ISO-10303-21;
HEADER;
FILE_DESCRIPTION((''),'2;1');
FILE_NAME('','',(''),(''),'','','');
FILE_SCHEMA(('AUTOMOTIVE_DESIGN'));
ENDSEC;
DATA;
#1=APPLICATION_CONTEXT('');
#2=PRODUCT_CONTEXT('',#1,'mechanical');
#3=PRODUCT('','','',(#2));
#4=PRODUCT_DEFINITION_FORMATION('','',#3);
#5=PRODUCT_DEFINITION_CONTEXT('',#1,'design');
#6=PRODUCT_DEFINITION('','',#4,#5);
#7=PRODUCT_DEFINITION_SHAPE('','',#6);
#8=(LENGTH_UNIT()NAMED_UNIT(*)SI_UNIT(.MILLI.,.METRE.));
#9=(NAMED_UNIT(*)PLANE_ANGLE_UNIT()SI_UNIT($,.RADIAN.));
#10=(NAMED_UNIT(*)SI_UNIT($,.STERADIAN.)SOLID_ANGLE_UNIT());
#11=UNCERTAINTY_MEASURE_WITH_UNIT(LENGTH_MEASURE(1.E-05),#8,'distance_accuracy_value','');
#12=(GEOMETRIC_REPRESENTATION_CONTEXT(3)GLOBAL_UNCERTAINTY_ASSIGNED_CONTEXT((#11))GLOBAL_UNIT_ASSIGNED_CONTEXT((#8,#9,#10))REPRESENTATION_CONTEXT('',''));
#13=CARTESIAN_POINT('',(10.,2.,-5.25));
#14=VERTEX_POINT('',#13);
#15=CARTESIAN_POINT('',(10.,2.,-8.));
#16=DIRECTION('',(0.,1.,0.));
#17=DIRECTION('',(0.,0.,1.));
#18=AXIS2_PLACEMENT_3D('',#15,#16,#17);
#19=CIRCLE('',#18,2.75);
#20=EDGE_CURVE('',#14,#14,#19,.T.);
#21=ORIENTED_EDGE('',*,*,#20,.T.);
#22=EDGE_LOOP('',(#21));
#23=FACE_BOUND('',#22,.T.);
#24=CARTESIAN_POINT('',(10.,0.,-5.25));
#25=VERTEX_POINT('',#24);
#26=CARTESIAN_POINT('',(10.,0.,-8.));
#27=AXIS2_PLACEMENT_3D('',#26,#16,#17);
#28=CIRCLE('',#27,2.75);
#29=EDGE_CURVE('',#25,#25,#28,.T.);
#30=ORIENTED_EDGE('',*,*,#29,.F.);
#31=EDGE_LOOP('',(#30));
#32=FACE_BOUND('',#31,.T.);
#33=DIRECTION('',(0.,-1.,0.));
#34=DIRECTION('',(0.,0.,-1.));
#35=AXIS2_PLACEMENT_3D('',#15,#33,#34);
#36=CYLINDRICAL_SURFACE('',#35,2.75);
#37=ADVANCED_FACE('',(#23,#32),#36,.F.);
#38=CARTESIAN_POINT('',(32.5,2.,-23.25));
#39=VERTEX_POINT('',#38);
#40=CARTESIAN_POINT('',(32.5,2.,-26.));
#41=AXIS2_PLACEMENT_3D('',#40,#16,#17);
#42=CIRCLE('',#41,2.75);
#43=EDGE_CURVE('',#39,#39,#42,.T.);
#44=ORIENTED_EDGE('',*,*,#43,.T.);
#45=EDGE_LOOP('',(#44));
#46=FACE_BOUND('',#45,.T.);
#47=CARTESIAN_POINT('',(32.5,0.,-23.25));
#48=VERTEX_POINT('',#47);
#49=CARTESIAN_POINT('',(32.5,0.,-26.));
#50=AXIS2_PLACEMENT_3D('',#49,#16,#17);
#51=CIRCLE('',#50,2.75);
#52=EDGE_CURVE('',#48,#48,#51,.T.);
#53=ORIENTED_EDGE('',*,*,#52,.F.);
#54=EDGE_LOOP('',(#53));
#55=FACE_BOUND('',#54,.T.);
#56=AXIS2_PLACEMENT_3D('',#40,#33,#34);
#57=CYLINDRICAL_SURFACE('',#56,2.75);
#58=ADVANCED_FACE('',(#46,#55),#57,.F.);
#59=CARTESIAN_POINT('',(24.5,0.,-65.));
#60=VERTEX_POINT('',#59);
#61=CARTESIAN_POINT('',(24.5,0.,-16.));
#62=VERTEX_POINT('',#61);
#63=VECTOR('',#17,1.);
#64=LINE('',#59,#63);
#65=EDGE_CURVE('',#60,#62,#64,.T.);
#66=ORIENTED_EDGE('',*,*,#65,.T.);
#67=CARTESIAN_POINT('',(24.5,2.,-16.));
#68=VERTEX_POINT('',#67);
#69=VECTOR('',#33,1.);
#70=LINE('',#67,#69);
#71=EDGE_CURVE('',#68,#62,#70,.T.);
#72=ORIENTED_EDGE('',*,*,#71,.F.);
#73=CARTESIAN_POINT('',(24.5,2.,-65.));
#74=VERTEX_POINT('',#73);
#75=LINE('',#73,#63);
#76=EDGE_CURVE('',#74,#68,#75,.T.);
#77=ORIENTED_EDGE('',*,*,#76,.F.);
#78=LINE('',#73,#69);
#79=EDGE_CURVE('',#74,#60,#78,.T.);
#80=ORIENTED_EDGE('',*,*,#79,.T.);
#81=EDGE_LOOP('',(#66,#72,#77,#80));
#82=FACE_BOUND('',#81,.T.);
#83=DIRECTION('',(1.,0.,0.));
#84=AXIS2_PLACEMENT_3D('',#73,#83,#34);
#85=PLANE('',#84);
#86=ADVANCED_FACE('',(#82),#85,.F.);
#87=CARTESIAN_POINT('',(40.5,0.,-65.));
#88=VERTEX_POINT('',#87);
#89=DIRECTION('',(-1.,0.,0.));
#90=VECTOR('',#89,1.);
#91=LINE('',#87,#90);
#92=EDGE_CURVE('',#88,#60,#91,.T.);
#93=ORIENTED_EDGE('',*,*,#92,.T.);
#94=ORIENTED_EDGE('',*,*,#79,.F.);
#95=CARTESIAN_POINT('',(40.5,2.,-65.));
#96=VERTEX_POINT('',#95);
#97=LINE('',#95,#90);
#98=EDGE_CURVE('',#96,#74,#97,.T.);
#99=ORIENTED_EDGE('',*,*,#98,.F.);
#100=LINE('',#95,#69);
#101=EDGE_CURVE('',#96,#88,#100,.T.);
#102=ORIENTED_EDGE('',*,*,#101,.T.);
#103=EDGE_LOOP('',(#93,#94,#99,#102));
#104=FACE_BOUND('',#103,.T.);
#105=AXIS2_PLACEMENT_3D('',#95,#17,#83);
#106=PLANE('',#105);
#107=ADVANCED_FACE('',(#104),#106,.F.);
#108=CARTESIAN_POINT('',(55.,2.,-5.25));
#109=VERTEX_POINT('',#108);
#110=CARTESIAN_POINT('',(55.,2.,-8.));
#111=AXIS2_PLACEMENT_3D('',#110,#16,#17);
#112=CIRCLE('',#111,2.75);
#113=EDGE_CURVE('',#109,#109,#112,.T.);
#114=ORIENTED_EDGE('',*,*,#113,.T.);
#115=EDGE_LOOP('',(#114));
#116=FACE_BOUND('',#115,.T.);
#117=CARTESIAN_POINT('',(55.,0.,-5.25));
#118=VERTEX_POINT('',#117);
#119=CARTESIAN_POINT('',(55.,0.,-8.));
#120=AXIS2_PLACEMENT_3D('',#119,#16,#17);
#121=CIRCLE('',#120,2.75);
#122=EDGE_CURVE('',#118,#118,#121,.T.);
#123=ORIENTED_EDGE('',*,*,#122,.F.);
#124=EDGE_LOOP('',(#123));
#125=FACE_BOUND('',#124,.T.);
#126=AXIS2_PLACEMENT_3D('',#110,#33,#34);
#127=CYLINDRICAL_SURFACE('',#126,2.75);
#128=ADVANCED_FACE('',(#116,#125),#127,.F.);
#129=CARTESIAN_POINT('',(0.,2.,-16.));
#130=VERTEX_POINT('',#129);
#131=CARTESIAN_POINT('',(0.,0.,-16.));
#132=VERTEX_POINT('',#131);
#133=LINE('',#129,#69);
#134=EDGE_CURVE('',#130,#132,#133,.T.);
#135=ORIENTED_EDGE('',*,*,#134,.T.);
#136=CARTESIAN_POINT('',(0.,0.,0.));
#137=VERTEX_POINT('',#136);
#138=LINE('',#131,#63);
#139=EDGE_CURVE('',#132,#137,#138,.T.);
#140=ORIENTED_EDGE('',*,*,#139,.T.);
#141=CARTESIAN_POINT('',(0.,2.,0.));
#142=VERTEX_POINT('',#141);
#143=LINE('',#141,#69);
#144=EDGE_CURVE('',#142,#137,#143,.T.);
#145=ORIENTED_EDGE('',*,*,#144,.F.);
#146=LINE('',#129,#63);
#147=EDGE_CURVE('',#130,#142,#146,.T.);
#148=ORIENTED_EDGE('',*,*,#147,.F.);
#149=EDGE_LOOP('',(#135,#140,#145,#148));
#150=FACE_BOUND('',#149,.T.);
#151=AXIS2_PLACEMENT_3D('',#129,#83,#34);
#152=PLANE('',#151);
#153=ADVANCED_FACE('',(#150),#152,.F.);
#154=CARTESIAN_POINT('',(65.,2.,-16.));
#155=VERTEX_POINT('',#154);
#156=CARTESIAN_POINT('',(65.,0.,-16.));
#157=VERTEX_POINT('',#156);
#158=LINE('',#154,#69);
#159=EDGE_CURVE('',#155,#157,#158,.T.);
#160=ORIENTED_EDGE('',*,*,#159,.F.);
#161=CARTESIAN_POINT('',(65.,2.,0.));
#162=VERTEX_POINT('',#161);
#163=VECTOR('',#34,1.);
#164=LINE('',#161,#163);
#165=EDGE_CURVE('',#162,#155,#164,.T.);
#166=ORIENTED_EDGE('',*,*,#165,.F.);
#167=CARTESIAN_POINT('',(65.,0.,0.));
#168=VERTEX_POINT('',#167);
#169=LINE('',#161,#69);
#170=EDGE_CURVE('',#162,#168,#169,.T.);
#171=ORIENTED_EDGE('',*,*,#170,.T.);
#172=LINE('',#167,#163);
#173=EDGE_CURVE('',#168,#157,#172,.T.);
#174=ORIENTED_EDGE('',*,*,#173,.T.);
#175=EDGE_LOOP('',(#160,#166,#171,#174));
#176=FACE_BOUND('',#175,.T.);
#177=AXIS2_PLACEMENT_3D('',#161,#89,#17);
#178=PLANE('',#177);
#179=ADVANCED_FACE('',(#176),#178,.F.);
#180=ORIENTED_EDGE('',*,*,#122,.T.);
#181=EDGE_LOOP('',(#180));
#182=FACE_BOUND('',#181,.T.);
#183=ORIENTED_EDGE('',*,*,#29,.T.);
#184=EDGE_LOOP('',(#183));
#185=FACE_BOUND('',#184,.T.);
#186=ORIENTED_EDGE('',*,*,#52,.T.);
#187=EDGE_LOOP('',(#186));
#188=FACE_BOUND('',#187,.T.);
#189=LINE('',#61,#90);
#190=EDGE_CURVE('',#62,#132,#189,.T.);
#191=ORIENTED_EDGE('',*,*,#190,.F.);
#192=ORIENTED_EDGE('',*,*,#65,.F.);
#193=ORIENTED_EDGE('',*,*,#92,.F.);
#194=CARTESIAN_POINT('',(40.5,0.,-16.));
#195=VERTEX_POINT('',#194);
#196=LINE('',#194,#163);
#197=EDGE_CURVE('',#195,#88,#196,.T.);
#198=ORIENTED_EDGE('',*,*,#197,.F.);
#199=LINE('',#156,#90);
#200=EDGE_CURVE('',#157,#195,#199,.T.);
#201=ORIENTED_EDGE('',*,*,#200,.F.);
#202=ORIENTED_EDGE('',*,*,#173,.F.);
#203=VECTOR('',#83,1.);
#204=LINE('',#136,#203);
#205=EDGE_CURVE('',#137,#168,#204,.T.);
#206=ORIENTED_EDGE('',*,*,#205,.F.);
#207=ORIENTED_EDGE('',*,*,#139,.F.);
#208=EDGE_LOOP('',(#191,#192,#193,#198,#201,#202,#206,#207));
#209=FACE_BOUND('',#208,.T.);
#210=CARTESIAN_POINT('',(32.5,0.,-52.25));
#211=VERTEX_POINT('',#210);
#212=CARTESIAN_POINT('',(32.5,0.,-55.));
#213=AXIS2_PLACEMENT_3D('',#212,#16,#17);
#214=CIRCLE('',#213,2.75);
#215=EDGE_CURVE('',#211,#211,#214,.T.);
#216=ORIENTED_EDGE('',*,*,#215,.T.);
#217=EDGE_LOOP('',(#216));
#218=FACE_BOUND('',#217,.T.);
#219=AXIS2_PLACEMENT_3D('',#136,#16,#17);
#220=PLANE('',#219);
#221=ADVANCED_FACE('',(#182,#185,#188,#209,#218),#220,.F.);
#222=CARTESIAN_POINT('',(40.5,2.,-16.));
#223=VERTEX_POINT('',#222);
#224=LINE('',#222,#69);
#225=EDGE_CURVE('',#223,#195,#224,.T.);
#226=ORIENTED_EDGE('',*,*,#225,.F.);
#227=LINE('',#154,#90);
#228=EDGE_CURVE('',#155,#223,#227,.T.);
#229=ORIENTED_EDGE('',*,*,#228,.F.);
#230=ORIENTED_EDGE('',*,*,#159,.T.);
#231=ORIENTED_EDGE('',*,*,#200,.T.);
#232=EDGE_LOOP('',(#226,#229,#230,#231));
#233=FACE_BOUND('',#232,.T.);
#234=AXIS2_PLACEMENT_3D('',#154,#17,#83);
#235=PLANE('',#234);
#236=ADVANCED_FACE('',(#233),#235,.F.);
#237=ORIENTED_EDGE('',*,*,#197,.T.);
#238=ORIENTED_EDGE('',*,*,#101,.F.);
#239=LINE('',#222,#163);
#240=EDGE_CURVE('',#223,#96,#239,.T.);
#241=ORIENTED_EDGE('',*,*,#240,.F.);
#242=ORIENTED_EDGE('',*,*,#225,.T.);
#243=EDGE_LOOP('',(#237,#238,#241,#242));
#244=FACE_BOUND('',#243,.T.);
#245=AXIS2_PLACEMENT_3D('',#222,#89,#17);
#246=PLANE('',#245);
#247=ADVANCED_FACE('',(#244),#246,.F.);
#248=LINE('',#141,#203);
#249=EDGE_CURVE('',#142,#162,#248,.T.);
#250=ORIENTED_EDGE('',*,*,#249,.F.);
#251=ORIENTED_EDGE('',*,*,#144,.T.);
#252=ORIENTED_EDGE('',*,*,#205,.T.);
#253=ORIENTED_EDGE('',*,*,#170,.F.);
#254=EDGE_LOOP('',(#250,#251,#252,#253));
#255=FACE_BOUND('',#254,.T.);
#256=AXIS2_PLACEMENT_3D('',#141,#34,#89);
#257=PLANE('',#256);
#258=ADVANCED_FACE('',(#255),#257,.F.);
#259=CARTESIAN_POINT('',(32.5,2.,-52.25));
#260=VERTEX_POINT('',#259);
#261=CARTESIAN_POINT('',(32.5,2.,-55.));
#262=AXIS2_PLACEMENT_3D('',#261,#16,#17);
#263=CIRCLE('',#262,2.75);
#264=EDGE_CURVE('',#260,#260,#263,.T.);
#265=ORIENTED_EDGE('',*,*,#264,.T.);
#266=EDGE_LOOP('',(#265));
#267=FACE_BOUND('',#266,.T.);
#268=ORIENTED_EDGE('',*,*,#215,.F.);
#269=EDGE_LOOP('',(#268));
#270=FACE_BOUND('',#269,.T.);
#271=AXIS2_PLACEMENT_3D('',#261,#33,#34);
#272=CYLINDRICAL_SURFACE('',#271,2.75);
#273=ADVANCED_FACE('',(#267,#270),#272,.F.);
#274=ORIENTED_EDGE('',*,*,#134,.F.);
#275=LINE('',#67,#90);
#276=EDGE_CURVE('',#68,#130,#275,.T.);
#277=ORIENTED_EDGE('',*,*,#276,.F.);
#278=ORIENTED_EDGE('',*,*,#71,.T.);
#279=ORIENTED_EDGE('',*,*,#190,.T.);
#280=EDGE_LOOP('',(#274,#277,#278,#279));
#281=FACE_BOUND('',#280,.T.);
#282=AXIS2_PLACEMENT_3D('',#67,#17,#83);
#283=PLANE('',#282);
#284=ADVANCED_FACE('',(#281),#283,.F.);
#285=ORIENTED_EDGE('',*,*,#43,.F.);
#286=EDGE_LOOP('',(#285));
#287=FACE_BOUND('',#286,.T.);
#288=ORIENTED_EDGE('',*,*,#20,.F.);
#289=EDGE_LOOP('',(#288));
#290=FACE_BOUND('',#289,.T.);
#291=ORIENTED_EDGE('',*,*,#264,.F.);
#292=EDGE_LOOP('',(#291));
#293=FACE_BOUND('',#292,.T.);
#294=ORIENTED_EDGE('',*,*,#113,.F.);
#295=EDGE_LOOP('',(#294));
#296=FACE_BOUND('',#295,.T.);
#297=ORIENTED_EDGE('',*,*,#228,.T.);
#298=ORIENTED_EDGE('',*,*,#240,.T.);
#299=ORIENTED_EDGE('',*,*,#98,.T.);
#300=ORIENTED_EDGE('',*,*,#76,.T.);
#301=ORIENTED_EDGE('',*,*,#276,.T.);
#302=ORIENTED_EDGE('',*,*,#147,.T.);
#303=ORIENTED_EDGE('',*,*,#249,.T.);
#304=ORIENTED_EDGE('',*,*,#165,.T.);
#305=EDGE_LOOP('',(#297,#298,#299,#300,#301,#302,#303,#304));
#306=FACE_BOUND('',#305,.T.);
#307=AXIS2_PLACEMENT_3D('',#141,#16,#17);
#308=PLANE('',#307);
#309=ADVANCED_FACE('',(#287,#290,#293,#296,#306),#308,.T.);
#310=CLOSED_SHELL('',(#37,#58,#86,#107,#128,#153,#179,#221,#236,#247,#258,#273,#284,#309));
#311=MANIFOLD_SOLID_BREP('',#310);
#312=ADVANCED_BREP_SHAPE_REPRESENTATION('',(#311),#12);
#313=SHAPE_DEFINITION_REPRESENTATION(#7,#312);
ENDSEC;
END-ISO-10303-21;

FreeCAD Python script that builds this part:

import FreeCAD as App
import Part
import Sketcher

V = App.Vector
Q = App.Units.Quantity


def add_polygon(sketch, points):
    """Adds a closed chain of lines whose ends are joined by coincident constraints."""
    first, n = sketch.GeometryCount, len(points)
    for a, b in zip(points, points[1:] + points[:1]):
        sketch.addGeometry(Part.LineSegment(App.Vector(*a, 0), App.Vector(*b, 0)), False)
    for i in range(n):
        sketch.addConstraint(Sketcher.Constraint("Coincident", first + i, 2, first + (i + 1) % n, 1))

doc = App.newDocument("Part")
params = doc.addObject("Spreadsheet::Sheet", "Params")
for row, (alias, value) in enumerate([
    ("sketch1_diameter", "5.5 mm"),
    ("sketch1_width", "65 mm"),
    ("sketch1_width2", "16 mm"),
    ("sketch1_height", "49 mm"),
    ("pad1_length", "2 mm"),
], start=1):
    params.set(f"A{row}", alias)
    params.set(f"B{row}", "=" + value)
    params.setAlias(f"B{row}", alias)

body = doc.addObject("PartDesign::Body", "Body")

sketch1 = doc.addObject("Sketcher::SketchObject", "Sketch")
body.addObject(sketch1)
sketch1.AttachmentSupport = (doc.XZ_Plane, [""])
sketch1.MapMode = "FlatFace"
add_polygon(sketch1, [(0, 0), (65, 0), (65, -16), (40.5, -16), (40.5, -65), (24.5, -65), (24.5, -16), (0, -16)])
sketch1.addGeometry(Part.Circle(V(10, -8, 0), V(0, 0, 1), 2.8), False)
sketch1.addGeometry(Part.Circle(V(55, -8, 0), V(0, 0, 1), 2.8), False)
sketch1.addGeometry(Part.Circle(V(32.5, -26, 0), V(0, 0, 1), 2.8), False)
sketch1.addGeometry(Part.Circle(V(32.5, -55, 0), V(0, 0, 1), 2.8), False)
sketch1.addConstraint([
    Sketcher.Constraint("Horizontal", 0),
    Sketcher.Constraint("Vertical", 1),
    Sketcher.Constraint("Horizontal", 2),
    Sketcher.Constraint("Vertical", 3),
    Sketcher.Constraint("Horizontal", 4),
    Sketcher.Constraint("Vertical", 5),
    Sketcher.Constraint("Horizontal", 6),
    Sketcher.Constraint("Vertical", 7),
    Sketcher.Constraint("Coincident", 7, 2, -1, 1),
    Sketcher.Constraint("Equal", 8, 9),
    Sketcher.Constraint("Equal", 9, 10),
    Sketcher.Constraint("Equal", 10, 11),
    Sketcher.Constraint("Horizontal", 8, 3, 9, 3),
    Sketcher.Constraint("Horizontal", 2, 2, 5, 2),
    Sketcher.Constraint("Vertical", 10, 3, 11, 3),
    Sketcher.Constraint("Equal", 2, 6),
    Sketcher.Constraint("Equal", 4, 1),
    Sketcher.Constraint("Diameter", 8, Q("5.5 mm")),
    Sketcher.Constraint("DistanceX", 0, 1, 0, 2, Q("65 mm")),
    Sketcher.Constraint("DistanceX", 4, 2, 4, 1, Q("16 mm")),
    Sketcher.Constraint("DistanceY", 3, 2, 3, 1, Q("49 mm")),
    Sketcher.Constraint("DistanceX", -1, 1, 8, 3, Q("10 mm")),
    Sketcher.Constraint("DistanceY", 8, 3, -1, 1, Q("8 mm")),
    Sketcher.Constraint("DistanceX", -1, 1, 9, 3, Q("55 mm")),
    Sketcher.Constraint("DistanceY", 10, 3, -1, 1, Q("26 mm")),
    Sketcher.Constraint("DistanceY", 11, 3, -1, 1, Q("55 mm")),
    Sketcher.Constraint("DistanceX", 10, 3, 2, 2, Q("8 mm")),
])
sketch1.setExpression("Constraints[25]", "Params.sketch1_diameter")
sketch1.setExpression("Constraints[26]", "Params.sketch1_width")
sketch1.setExpression("Constraints[27]", "Params.sketch1_width2")
sketch1.setExpression("Constraints[28]", "Params.sketch1_height")
pad1 = doc.addObject("PartDesign::Pad", "Pad")
body.addObject(pad1)
pad1.Profile = sketch1
pad1.setExpression("Length", "Params.pad1_length")
pad1.Reversed = True

doc.recompute()
